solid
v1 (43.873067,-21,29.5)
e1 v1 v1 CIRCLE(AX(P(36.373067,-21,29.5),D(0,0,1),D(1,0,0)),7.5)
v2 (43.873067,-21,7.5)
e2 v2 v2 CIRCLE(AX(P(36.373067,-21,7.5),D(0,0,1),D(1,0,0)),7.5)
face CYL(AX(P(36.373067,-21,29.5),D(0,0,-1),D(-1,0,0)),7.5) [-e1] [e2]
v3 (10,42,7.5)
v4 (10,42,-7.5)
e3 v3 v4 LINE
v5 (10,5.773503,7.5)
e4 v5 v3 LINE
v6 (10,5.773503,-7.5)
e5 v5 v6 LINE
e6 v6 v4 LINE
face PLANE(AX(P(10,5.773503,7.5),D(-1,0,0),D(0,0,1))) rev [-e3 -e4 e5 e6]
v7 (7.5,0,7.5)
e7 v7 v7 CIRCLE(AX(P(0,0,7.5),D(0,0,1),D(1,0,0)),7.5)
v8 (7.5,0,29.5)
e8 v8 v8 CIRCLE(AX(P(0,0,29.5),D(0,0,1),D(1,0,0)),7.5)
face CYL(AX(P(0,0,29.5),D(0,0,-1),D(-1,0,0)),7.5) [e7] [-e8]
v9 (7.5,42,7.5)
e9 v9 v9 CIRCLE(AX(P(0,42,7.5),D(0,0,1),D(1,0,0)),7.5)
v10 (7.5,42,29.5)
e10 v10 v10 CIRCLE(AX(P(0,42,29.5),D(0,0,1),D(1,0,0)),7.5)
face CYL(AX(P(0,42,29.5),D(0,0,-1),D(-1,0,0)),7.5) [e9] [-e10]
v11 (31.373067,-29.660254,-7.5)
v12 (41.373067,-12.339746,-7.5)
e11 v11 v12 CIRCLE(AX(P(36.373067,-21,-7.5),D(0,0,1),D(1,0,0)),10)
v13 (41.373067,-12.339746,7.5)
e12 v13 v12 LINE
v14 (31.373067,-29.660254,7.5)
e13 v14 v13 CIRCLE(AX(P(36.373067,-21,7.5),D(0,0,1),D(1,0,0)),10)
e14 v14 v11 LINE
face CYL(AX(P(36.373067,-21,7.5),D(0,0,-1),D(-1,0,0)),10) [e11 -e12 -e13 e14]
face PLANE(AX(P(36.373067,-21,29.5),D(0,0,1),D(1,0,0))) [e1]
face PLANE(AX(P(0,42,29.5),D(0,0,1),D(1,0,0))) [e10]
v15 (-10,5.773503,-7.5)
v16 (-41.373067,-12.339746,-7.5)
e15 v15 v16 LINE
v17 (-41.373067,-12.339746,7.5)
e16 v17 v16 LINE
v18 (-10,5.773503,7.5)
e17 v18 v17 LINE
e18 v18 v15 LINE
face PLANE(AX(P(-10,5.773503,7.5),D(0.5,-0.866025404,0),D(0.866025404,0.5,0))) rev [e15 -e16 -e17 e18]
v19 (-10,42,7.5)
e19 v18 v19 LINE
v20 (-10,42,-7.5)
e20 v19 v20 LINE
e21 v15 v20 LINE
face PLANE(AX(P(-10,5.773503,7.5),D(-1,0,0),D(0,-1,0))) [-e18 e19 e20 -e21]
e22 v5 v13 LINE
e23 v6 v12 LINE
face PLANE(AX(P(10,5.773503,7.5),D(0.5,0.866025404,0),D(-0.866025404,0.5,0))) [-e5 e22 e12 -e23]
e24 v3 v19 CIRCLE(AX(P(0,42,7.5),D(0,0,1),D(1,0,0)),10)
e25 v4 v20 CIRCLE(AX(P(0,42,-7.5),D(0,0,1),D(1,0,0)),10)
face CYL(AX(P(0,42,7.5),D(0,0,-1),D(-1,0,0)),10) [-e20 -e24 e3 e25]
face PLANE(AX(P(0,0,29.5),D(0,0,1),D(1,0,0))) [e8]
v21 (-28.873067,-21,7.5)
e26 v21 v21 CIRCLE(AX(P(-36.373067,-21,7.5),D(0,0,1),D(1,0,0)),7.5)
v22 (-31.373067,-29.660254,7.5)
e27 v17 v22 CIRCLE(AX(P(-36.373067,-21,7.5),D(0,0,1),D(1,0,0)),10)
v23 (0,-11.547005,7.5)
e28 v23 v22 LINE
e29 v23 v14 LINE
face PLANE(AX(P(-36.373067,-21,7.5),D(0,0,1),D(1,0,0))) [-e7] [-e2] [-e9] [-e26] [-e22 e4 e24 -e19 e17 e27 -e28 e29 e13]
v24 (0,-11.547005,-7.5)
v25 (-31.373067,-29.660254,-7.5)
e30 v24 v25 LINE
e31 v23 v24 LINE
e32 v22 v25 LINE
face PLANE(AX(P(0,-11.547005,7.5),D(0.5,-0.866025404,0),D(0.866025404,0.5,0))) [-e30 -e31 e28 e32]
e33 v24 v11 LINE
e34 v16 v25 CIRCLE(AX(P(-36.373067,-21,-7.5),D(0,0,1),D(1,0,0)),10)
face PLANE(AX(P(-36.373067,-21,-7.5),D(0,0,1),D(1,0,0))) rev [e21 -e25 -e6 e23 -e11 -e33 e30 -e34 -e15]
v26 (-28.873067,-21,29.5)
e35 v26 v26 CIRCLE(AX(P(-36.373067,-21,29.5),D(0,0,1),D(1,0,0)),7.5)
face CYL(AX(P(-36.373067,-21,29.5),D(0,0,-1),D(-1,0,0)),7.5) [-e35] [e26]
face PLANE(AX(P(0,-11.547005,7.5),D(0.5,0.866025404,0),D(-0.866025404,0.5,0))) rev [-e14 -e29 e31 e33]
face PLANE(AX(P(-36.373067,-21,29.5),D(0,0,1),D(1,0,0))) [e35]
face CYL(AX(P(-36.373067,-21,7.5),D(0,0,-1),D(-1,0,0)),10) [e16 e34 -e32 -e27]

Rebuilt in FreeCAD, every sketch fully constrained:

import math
import FreeCAD as App
import Part
import Sketcher
from FreeCAD import Vector
Q = App.Units.Quantity

doc = App.newDocument("Part")
params = doc.addObject("Spreadsheet::Sheet", "Params")
for row, (alias, value) in enumerate([
    ("sketch1_radius", "10 mm"),
    ("pad1_length", "15 mm"),
    ("sketch2_diameter", "15 mm"),
    ("pad2_length", "22 mm"),
    ("sketch3_diameter", "15 mm"),
    ("pad3_length", "22 mm"),
], start=1):
    params.set(f"A{row}", alias)
    params.set(f"B{row}", "=" + value)
    params.setAlias(f"B{row}", alias)

body = doc.addObject("PartDesign::Body", "Body")

sketch1 = doc.addObject("Sketcher::SketchObject", "Sketch")
body.addObject(sketch1)
sketch1.AttachmentSupport = (doc.XY_Plane, [""])
sketch1.MapMode = "FlatFace"
sketch1.addGeometry([
    Part.LineSegment(Vector(-31.373067, -29.660254, 0), Vector(0, -11.547005, 0)),
    Part.LineSegment(Vector(0, -11.547005, 0), Vector(31.373067, -29.660254, 0)),
    Part.ArcOfCircle(Part.Circle(Vector(36.373067, -21, 0), Vector(0, 0, 1), 10), math.radians(-120), math.radians(60)),
    Part.LineSegment(Vector(41.373067, -12.339746, 0), Vector(10, 5.773503, 0)),
    Part.LineSegment(Vector(10, 5.773503, 0), Vector(10, 42, 0)),
    Part.ArcOfCircle(Part.Circle(Vector(0, 42, 0), Vector(0, 0, 1), 10), math.radians(0), math.radians(180)),
    Part.LineSegment(Vector(-10, 42, 0), Vector(-10, 5.773503, 0)),
    Part.LineSegment(Vector(-10, 5.773503, 0), Vector(-41.373067, -12.339746, 0)),
    Part.ArcOfCircle(Part.Circle(Vector(-36.373067, -21, 0), Vector(0, 0, 1), 10), math.radians(120), math.radians(300)),
], False)
sketch1.addConstraint([
    Sketcher.Constraint("Coincident", 0, 2, 1, 1),
    Sketcher.Constraint("Tangent", 1, 2, 2, 1),
    Sketcher.Constraint("Tangent", 2, 2, 3, 1),
    Sketcher.Constraint("Coincident", 3, 2, 4, 1),
    Sketcher.Constraint("Tangent", 4, 2, 5, 1),
    Sketcher.Constraint("Tangent", 5, 2, 6, 1),
    Sketcher.Constraint("Coincident", 6, 2, 7, 1),
    Sketcher.Constraint("Tangent", 7, 2, 8, 1),
    Sketcher.Constraint("Tangent", 8, 2, 0, 1),
    Sketcher.Constraint("Vertical", 4),
    Sketcher.Constraint("Vertical", 6),
    Sketcher.Constraint("Equal", 2, 5),
    Sketcher.Constraint("Equal", 5, 8),
    Sketcher.Constraint("Symmetric", 2, 3, 8, 3, -2),
    Sketcher.Constraint("Symmetric", 3, 2, 6, 2, -2),
    Sketcher.Constraint("PointOnObject", 0, 2, -2),
    Sketcher.Constraint("Parallel", 1, 3),
    Sketcher.Constraint("Equal", 1, 3),
    Sketcher.Constraint("Radius", 2, Q("10 mm")),
    Sketcher.Constraint("DistanceY", 2, 3, -1, 1, Q("21 mm")),
    Sketcher.Constraint("DistanceY", -1, 1, 5, 3, Q("42 mm")),
    Sketcher.Constraint("DistanceY", 4, 1, 4, 2, Q("36.226497 mm")),
])
sketch1.setExpression("Constraints[18]", "Params.sketch1_radius")
pad1 = doc.addObject("PartDesign::Pad", "Pad")
body.addObject(pad1)
pad1.Profile = sketch1
pad1.setExpression("Length", "Params.pad1_length")
pad1.Midplane = True

sketch2 = doc.addObject("Sketcher::SketchObject", "Sketch001")
body.addObject(sketch2)
sketch2.AttachmentSupport = (doc.XY_Plane, [""])
sketch2.MapMode = "FlatFace"
sketch2.AttachmentOffset = App.Placement(Vector(0, 0, 7.5), App.Rotation())
sketch2.addGeometry([
    Part.Circle(Vector(0, 42, 0), Vector(0, 0, 1), 7.5),
    Part.Circle(Vector(36.373067, -21, 0), Vector(0, 0, 1), 7.5),
    Part.Circle(Vector(-36.373067, -21, 0), Vector(0, 0, 1), 7.5),
], False)
sketch2.addConstraint([
    Sketcher.Constraint("Equal", 0, 1),
    Sketcher.Constraint("Equal", 1, 2),
    Sketcher.Constraint("Symmetric", 1, 3, 2, 3, -2),
    Sketcher.Constraint("PointOnObject", 0, 3, -2),
    Sketcher.Constraint("Diameter", 0, Q("15 mm")),
    Sketcher.Constraint("DistanceY", -1, 1, 0, 3, Q("42 mm")),
    Sketcher.Constraint("DistanceY", 1, 3, -1, 1, Q("21 mm")),
    Sketcher.Constraint("DistanceX", -1, 1, 1, 3, Q("36.373067 mm")),
])
sketch2.setExpression("Constraints[4]", "Params.sketch2_diameter")
pad2 = doc.addObject("PartDesign::Pad", "Pad001")
body.addObject(pad2)
pad2.Profile = sketch2
pad2.setExpression("Length", "Params.pad2_length")

sketch3 = doc.addObject("Sketcher::SketchObject", "Sketch002")
body.addObject(sketch3)
sketch3.AttachmentSupport = (doc.XY_Plane, [""])
sketch3.MapMode = "FlatFace"
sketch3.AttachmentOffset = App.Placement(Vector(0, 0, 7.5), App.Rotation())
sketch3.addGeometry(Part.Circle(Vector(0, 0, 0), Vector(0, 0, 1), 7.5), False)
sketch3.addConstraint([
    Sketcher.Constraint("Coincident", 0, 3, -1, 1),
    Sketcher.Constraint("Diameter", 0, Q("15 mm")),
])
sketch3.setExpression("Constraints[1]", "Params.sketch3_diameter")
pad3 = doc.addObject("PartDesign::Pad", "Pad002")
body.addObject(pad3)
pad3.Profile = sketch3
pad3.setExpression("Length", "Params.pad3_length")

doc.recompute()
